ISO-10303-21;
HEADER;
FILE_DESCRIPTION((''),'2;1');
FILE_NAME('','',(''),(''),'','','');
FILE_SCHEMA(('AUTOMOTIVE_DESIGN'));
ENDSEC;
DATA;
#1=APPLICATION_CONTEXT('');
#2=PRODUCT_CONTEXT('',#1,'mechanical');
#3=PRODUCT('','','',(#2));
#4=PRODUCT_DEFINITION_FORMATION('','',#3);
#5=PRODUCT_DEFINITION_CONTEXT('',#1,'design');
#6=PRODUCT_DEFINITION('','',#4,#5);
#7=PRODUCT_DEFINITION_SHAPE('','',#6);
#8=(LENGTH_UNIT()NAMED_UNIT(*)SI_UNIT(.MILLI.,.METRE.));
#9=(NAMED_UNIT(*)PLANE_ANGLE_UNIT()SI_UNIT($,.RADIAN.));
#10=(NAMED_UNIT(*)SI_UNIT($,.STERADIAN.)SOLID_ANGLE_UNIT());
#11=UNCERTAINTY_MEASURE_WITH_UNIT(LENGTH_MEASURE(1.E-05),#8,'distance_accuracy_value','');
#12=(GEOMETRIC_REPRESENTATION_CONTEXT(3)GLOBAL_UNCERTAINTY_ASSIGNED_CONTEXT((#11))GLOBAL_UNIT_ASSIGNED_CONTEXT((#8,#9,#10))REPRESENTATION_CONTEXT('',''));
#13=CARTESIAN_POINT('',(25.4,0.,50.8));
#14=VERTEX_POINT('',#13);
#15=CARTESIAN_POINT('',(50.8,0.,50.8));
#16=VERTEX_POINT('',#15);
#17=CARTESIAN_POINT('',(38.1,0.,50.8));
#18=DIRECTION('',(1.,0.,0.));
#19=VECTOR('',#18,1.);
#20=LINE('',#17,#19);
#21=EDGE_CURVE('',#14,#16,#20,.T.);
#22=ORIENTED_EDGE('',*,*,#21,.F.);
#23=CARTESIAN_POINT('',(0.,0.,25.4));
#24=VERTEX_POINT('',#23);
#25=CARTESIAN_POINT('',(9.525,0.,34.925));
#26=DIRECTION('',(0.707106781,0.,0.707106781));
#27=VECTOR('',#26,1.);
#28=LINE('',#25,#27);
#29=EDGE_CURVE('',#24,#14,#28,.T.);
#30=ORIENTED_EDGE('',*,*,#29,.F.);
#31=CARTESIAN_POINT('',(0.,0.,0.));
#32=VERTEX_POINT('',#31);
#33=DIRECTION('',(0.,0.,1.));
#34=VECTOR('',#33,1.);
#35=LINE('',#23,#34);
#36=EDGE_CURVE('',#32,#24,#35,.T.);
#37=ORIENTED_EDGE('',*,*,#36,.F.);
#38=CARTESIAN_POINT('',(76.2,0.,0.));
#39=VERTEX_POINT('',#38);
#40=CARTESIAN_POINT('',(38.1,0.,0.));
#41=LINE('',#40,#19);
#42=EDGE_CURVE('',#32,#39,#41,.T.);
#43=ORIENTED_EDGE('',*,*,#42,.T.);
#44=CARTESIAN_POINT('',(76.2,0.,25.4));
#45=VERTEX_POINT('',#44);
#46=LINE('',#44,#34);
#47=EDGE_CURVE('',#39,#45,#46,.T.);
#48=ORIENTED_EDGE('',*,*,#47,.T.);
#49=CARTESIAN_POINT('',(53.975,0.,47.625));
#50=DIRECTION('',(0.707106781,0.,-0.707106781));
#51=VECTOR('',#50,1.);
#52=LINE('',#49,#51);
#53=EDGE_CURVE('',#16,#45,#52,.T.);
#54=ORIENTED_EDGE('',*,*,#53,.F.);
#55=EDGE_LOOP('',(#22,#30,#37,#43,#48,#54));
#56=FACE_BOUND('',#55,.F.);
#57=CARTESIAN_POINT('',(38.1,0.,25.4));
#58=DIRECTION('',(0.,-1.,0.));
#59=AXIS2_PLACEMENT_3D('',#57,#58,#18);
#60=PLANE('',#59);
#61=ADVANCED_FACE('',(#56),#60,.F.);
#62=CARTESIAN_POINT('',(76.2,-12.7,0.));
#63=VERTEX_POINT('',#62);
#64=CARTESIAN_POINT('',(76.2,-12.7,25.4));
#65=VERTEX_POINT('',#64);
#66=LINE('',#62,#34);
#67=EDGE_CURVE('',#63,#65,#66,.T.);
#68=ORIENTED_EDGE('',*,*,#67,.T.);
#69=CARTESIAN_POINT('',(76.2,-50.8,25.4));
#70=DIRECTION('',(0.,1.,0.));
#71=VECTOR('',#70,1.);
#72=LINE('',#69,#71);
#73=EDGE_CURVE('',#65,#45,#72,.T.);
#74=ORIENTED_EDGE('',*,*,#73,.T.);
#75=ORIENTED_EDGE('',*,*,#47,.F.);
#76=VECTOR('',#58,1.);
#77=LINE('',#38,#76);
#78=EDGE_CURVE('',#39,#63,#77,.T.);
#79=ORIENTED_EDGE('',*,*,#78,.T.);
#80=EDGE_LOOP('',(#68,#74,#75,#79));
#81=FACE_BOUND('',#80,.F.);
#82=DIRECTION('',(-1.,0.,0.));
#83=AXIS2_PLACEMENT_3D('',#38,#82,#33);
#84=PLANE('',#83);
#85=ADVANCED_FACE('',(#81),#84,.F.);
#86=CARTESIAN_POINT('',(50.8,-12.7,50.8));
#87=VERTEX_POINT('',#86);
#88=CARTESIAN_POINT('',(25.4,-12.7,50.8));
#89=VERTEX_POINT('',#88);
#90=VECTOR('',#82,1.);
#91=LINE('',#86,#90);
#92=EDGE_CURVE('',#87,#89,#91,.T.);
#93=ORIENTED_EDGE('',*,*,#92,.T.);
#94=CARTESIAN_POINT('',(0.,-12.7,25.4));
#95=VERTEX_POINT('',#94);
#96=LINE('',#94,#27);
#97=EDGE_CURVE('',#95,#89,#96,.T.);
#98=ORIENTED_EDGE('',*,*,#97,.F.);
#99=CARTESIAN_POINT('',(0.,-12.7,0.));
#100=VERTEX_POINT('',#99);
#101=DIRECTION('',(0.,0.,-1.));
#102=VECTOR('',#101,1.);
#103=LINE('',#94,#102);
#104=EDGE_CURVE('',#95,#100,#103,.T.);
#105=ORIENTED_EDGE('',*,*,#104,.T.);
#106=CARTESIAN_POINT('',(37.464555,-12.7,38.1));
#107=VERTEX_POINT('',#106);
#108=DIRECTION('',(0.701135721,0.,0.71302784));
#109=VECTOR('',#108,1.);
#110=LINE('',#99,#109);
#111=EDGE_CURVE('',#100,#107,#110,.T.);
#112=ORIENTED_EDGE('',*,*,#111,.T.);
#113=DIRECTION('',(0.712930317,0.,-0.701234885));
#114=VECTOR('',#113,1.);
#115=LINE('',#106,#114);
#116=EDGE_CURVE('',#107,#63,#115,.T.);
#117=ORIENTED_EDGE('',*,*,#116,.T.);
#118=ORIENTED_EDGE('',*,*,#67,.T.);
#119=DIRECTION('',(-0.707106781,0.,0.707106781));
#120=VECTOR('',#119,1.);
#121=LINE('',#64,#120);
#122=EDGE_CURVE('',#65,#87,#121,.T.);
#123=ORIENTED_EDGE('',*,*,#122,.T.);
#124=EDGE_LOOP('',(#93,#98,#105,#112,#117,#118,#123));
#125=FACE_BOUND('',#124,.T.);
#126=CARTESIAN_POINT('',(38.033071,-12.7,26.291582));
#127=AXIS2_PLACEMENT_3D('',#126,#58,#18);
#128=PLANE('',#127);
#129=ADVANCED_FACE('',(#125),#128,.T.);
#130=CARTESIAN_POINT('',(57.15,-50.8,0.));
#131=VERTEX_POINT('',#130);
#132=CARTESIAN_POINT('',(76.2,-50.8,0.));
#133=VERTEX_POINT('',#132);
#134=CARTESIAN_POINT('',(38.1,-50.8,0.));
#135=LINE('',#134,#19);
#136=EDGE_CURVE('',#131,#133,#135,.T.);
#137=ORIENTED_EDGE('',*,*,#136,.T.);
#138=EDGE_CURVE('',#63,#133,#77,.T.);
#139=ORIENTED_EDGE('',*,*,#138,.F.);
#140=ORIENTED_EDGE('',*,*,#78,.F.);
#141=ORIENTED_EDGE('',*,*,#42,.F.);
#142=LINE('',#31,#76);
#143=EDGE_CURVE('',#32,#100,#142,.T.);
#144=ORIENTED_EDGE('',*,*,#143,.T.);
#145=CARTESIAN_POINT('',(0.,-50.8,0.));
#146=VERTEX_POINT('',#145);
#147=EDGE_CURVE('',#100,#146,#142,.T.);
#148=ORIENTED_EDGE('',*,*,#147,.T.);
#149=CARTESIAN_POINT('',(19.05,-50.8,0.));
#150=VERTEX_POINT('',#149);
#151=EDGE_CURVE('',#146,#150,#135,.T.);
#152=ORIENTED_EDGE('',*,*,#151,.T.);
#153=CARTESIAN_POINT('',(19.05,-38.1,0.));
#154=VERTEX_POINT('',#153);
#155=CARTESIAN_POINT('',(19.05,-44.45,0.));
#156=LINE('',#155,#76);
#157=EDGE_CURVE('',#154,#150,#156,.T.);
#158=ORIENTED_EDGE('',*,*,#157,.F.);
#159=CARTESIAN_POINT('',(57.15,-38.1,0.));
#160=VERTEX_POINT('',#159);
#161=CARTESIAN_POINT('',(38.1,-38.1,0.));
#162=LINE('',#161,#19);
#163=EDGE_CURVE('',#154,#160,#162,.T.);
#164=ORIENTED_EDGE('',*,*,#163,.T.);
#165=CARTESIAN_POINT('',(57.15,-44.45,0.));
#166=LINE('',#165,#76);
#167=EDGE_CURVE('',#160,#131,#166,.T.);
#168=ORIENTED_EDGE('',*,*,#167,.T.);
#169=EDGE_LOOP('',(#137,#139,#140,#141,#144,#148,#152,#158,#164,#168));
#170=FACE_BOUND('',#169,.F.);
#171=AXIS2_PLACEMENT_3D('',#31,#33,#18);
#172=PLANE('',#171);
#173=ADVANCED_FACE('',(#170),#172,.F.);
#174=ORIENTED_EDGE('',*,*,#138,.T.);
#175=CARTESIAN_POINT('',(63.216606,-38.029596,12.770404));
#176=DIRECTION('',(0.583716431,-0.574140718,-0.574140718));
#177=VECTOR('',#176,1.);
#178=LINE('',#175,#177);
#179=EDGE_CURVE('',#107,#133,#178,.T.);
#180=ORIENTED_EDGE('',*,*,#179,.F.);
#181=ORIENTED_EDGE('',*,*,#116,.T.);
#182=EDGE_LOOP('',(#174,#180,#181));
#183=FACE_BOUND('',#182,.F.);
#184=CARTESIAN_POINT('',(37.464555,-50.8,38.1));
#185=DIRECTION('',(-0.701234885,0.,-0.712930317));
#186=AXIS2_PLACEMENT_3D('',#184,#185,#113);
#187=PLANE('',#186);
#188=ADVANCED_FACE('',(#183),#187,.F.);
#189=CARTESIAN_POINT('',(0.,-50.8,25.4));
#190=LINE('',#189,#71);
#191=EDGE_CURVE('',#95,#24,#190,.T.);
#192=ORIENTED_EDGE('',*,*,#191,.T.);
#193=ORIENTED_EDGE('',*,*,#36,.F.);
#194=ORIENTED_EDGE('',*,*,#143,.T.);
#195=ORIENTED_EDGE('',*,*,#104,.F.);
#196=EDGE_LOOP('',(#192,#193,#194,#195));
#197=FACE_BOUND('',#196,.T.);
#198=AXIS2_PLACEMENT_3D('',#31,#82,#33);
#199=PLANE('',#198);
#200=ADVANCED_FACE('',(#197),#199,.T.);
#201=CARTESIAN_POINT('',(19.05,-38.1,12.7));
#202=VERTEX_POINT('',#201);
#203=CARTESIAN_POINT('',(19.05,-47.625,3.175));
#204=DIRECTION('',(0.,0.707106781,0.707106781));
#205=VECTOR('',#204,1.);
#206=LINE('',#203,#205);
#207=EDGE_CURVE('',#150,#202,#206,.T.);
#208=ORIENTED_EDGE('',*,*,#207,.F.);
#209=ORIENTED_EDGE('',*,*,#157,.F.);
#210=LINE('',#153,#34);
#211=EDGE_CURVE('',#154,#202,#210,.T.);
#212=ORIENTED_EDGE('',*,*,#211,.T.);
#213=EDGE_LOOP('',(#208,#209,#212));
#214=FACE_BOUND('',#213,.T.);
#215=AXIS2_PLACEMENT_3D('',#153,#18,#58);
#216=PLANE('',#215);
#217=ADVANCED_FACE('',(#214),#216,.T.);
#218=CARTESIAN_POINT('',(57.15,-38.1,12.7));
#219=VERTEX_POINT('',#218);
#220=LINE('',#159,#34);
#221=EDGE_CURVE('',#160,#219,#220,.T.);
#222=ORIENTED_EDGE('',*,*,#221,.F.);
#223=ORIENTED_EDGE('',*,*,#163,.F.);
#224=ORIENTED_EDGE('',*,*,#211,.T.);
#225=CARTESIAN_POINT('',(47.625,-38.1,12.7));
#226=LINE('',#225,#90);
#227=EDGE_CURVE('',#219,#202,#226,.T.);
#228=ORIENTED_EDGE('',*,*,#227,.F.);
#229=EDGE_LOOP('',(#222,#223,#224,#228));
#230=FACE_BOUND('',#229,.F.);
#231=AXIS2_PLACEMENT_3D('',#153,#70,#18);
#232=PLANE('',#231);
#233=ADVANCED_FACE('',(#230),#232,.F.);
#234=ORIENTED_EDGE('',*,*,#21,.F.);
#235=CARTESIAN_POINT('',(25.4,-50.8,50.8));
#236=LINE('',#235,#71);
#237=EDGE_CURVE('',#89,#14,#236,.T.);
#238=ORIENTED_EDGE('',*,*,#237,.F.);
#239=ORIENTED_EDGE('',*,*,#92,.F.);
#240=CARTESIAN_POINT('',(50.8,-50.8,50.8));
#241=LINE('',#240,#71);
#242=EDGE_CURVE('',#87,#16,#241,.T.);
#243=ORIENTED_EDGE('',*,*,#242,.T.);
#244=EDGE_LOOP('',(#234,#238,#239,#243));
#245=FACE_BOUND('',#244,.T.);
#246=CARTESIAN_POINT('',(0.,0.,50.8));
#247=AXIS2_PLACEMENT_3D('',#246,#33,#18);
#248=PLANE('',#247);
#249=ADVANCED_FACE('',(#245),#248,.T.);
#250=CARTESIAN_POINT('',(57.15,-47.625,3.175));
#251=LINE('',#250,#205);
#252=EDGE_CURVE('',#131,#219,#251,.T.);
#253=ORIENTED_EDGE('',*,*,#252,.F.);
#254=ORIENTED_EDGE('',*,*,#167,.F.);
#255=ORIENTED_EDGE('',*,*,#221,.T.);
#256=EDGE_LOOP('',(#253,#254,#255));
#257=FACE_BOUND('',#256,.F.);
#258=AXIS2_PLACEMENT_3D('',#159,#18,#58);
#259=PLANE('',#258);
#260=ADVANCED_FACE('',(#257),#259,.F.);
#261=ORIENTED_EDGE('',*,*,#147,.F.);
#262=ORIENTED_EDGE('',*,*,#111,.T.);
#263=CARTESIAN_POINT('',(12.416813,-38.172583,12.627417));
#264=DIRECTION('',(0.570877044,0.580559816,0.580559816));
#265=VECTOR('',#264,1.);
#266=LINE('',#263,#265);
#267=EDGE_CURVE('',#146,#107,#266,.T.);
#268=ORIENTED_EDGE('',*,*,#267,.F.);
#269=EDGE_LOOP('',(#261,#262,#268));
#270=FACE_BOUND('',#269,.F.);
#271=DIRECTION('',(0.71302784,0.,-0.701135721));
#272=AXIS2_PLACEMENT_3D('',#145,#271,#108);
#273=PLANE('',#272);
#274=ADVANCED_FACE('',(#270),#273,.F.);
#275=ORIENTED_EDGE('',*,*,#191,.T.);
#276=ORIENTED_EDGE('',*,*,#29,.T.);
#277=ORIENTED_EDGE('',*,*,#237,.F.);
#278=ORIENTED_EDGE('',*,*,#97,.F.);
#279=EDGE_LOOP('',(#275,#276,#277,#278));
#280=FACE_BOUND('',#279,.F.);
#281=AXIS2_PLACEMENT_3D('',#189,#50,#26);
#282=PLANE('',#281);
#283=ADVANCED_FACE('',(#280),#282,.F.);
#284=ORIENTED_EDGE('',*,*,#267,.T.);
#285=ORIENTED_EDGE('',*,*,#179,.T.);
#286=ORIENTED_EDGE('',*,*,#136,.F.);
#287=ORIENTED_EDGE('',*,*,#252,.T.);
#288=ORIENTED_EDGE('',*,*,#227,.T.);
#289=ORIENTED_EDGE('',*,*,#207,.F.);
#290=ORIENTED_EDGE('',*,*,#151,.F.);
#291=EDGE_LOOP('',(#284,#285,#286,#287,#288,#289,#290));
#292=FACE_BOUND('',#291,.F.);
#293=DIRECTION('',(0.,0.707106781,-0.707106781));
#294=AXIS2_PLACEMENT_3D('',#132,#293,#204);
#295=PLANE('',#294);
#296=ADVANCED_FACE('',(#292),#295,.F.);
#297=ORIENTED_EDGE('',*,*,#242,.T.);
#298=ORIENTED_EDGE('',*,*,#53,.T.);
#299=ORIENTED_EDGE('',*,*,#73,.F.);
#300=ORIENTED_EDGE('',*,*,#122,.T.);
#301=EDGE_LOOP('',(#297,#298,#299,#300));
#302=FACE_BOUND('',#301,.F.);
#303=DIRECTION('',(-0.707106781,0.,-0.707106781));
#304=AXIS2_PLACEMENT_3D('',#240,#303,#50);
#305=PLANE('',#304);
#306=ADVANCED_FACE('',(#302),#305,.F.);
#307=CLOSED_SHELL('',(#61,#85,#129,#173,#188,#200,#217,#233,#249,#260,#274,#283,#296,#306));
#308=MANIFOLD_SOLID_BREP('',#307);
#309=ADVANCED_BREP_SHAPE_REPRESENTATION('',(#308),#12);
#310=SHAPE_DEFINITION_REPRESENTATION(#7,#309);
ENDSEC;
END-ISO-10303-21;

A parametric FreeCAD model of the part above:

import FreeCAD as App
import Part
import Sketcher
Q = App.Units.Quantity


def add_polygon(sketch, points):
    """Adds a closed chain of lines whose ends are joined by coincident constraints."""
    first, n = sketch.GeometryCount, len(points)
    for a, b in zip(points, points[1:] + points[:1]):
        sketch.addGeometry(Part.LineSegment(App.Vector(*a, 0), App.Vector(*b, 0)), False)
    for i in range(n):
        sketch.addConstraint(Sketcher.Constraint("Coincident", first + i, 2, first + (i + 1) % n, 1))

doc = App.newDocument("Part")
body = doc.addObject("PartDesign::Body", "Body")

sketch1 = body.newObject("Sketcher::SketchObject", "Sketch")
sketch1.AttachmentSupport = (doc.getObject("XZ_Plane"), [""])
sketch1.MapMode = "FlatFace"
add_polygon(sketch1, [(0, 51), (0, 0), (76, 0), (76, 51)])
sketch1.addConstraint([
    Sketcher.Constraint("Vertical", 0),
    Sketcher.Constraint("Horizontal", 1),
    Sketcher.Constraint("Vertical", 2),
    Sketcher.Constraint("Horizontal", 3),
    Sketcher.Constraint("Coincident", 0, 2, -1, 1),
    Sketcher.Constraint("DistanceX", 1, 1, 1, 2, Q("3 in")),
    Sketcher.Constraint("DistanceY", 0, 2, 0, 1, Q("2 in")),
])
pad1 = body.newObject("PartDesign::Pad", "Pad")
pad1.Profile = sketch1
pad1.Length = Q("2 in")

sketch2 = body.newObject("Sketcher::SketchObject", "Sketch001")
sketch2.AttachmentSupport = (doc.getObject("XZ_Plane"), [""])
sketch2.MapMode = "FlatFace"
sketch2.AttachmentOffset = App.Placement(App.Vector(0, 0, 2 * 25.4), App.Rotation())
add_polygon(sketch2, [(0, 51), (0, 25), (25, 51)])
add_polygon(sketch2, [(76, 25), (76, 51), (51, 51)])
sketch2.addConstraint([
    Sketcher.Constraint("Vertical", 0),
    Sketcher.Constraint("Horizontal", 2),
    Sketcher.Constraint("Vertical", 3),
    Sketcher.Constraint("Horizontal", 4),
    Sketcher.Constraint("PointOnObject", 0, 2, -2),
    Sketcher.Constraint("Perpendicular", 1, 5),
    Sketcher.Constraint("Horizontal", 2, 2, 3, 2),
    Sketcher.Constraint("Horizontal", 0, 2, 5, 2),
    Sketcher.Constraint("Equal", 2, 4),
    Sketcher.Constraint("DistanceX", 2, 2, 2, 1, Q("1 in")),
    Sketcher.Constraint("DistanceY", -1, 1, 0, 2, Q("1 in")),
    Sketcher.Constraint("DistanceX", -1, 1, 3, 2, Q("3 in")),
])
pocket1 = body.newObject("PartDesign::Pocket", "Pocket")
pocket1.Profile = sketch2
pocket1.Type = "ThroughAll"

sketch3 = body.newObject("Sketcher::SketchObject", "Sketch002")
sketch3.AttachmentSupport = (doc.getObject("XY_Plane"), [""])
sketch3.MapMode = "FlatFace"
add_polygon(sketch3, [(19, -51), (19, -38), (57, -38), (57, -51)])
sketch3.addConstraint([
    Sketcher.Constraint("Vertical", 0),
    Sketcher.Constraint("Horizontal", 1),
    Sketcher.Constraint("Vertical", 2),
    Sketcher.Constraint("Horizontal", 3),
    Sketcher.Constraint("DistanceX", 1, 1, 1, 2, Q("1.5 in")),
    Sketcher.Constraint("DistanceY", 0, 1, 0, 2, Q("0.5 in")),
    Sketcher.Constraint("DistanceY", 2, 2, -1, 1, Q("2 in")),
    Sketcher.Constraint("DistanceX", -1, 1, 0, 2, Q("0.75 in")),
])
pocket2 = body.newObject("PartDesign::Pocket", "Pocket001")
pocket2.Profile = sketch3
pocket2.Type = "ThroughAll"
pocket2.Reversed = True

sketch4 = body.newObject("Sketcher::SketchObject", "Sketch003")
sketch4.AttachmentSupport = (doc.getObject("XZ_Plane"), [""])
sketch4.MapMode = "FlatFace"
sketch4.AttachmentOffset = App.Placement(App.Vector(0, 0, 2 * 25.4), App.Rotation())
add_polygon(sketch4, [(76, 25), (51, 51), (25, 51), (0, 25), (0, 0), (37, 38), (76, 0)])
sketch4.addConstraint([
    Sketcher.Constraint("Horizontal", 1),
    Sketcher.Constraint("Vertical", 3),
    Sketcher.Constraint("Vertical", 6),
    Sketcher.Constraint("Coincident", 3, 2, -1, 1),
    Sketcher.Constraint("PointOnObject", 5, 2, -1),
    Sketcher.Constraint("Perpendicular", 0, 2),
    Sketcher.Constraint("Horizontal", 2, 2, 6, 2),
    Sketcher.Constraint("Equal", 1, 3),
    Sketcher.Constraint("Equal", 0, 2),
    Sketcher.Constraint("DistanceX", 1, 2, 1, 1, Q("1 in")),
    Sketcher.Constraint("DistanceX", -1, 1, 0, 2, Q("2 in")),
    Sketcher.Constraint("DistanceY", -1, 1, 4, 2, Q("1.5 in")),
    Sketcher.Constraint("Distance", 4, Q("53.434099 mm")),
])
pocket3 = body.newObject("PartDesign::Pocket", "Pocket002")
pocket3.Profile = sketch4
pocket3.Length = Q("1.5 in")

sketch5 = body.newObject("Sketcher::SketchObject", "Sketch004")
sketch5.AttachmentSupport = (doc.getObject("YZ_Plane"), [""])
sketch5.MapMode = "FlatFace"
sketch5.AttachmentOffset = App.Placement(App.Vector(0, 0, 3 * 25.4), App.Rotation())
add_polygon(sketch5, [(-51, 0), (-13, 38), (-38, 38), (-51, 28)])
sketch5.addConstraint([
    Sketcher.Constraint("Horizontal", 1),
    Sketcher.Constraint("Vertical", 3),
    Sketcher.Constraint("PointOnObject", 3, 2, -1),
    Sketcher.Constraint("DistanceX", 1, 2, 1, 1, Q("1 in")),
    Sketcher.Constraint("DistanceX", 2, 2, -1, 1, Q("2 in")),
    Sketcher.Constraint("Angle", 0, Q("45 deg")),
    Sketcher.Constraint("DistanceX", 0, 2, -1, 1, Q("0.5 in")),
    Sketcher.Constraint("DistanceY", 3, 2, 3, 1, Q("28.336816 mm")),
])
pocket4 = body.newObject("PartDesign::Pocket", "Pocket003")
pocket4.Profile = sketch5
pocket4.Type = "ThroughAll"

doc.recompute()
